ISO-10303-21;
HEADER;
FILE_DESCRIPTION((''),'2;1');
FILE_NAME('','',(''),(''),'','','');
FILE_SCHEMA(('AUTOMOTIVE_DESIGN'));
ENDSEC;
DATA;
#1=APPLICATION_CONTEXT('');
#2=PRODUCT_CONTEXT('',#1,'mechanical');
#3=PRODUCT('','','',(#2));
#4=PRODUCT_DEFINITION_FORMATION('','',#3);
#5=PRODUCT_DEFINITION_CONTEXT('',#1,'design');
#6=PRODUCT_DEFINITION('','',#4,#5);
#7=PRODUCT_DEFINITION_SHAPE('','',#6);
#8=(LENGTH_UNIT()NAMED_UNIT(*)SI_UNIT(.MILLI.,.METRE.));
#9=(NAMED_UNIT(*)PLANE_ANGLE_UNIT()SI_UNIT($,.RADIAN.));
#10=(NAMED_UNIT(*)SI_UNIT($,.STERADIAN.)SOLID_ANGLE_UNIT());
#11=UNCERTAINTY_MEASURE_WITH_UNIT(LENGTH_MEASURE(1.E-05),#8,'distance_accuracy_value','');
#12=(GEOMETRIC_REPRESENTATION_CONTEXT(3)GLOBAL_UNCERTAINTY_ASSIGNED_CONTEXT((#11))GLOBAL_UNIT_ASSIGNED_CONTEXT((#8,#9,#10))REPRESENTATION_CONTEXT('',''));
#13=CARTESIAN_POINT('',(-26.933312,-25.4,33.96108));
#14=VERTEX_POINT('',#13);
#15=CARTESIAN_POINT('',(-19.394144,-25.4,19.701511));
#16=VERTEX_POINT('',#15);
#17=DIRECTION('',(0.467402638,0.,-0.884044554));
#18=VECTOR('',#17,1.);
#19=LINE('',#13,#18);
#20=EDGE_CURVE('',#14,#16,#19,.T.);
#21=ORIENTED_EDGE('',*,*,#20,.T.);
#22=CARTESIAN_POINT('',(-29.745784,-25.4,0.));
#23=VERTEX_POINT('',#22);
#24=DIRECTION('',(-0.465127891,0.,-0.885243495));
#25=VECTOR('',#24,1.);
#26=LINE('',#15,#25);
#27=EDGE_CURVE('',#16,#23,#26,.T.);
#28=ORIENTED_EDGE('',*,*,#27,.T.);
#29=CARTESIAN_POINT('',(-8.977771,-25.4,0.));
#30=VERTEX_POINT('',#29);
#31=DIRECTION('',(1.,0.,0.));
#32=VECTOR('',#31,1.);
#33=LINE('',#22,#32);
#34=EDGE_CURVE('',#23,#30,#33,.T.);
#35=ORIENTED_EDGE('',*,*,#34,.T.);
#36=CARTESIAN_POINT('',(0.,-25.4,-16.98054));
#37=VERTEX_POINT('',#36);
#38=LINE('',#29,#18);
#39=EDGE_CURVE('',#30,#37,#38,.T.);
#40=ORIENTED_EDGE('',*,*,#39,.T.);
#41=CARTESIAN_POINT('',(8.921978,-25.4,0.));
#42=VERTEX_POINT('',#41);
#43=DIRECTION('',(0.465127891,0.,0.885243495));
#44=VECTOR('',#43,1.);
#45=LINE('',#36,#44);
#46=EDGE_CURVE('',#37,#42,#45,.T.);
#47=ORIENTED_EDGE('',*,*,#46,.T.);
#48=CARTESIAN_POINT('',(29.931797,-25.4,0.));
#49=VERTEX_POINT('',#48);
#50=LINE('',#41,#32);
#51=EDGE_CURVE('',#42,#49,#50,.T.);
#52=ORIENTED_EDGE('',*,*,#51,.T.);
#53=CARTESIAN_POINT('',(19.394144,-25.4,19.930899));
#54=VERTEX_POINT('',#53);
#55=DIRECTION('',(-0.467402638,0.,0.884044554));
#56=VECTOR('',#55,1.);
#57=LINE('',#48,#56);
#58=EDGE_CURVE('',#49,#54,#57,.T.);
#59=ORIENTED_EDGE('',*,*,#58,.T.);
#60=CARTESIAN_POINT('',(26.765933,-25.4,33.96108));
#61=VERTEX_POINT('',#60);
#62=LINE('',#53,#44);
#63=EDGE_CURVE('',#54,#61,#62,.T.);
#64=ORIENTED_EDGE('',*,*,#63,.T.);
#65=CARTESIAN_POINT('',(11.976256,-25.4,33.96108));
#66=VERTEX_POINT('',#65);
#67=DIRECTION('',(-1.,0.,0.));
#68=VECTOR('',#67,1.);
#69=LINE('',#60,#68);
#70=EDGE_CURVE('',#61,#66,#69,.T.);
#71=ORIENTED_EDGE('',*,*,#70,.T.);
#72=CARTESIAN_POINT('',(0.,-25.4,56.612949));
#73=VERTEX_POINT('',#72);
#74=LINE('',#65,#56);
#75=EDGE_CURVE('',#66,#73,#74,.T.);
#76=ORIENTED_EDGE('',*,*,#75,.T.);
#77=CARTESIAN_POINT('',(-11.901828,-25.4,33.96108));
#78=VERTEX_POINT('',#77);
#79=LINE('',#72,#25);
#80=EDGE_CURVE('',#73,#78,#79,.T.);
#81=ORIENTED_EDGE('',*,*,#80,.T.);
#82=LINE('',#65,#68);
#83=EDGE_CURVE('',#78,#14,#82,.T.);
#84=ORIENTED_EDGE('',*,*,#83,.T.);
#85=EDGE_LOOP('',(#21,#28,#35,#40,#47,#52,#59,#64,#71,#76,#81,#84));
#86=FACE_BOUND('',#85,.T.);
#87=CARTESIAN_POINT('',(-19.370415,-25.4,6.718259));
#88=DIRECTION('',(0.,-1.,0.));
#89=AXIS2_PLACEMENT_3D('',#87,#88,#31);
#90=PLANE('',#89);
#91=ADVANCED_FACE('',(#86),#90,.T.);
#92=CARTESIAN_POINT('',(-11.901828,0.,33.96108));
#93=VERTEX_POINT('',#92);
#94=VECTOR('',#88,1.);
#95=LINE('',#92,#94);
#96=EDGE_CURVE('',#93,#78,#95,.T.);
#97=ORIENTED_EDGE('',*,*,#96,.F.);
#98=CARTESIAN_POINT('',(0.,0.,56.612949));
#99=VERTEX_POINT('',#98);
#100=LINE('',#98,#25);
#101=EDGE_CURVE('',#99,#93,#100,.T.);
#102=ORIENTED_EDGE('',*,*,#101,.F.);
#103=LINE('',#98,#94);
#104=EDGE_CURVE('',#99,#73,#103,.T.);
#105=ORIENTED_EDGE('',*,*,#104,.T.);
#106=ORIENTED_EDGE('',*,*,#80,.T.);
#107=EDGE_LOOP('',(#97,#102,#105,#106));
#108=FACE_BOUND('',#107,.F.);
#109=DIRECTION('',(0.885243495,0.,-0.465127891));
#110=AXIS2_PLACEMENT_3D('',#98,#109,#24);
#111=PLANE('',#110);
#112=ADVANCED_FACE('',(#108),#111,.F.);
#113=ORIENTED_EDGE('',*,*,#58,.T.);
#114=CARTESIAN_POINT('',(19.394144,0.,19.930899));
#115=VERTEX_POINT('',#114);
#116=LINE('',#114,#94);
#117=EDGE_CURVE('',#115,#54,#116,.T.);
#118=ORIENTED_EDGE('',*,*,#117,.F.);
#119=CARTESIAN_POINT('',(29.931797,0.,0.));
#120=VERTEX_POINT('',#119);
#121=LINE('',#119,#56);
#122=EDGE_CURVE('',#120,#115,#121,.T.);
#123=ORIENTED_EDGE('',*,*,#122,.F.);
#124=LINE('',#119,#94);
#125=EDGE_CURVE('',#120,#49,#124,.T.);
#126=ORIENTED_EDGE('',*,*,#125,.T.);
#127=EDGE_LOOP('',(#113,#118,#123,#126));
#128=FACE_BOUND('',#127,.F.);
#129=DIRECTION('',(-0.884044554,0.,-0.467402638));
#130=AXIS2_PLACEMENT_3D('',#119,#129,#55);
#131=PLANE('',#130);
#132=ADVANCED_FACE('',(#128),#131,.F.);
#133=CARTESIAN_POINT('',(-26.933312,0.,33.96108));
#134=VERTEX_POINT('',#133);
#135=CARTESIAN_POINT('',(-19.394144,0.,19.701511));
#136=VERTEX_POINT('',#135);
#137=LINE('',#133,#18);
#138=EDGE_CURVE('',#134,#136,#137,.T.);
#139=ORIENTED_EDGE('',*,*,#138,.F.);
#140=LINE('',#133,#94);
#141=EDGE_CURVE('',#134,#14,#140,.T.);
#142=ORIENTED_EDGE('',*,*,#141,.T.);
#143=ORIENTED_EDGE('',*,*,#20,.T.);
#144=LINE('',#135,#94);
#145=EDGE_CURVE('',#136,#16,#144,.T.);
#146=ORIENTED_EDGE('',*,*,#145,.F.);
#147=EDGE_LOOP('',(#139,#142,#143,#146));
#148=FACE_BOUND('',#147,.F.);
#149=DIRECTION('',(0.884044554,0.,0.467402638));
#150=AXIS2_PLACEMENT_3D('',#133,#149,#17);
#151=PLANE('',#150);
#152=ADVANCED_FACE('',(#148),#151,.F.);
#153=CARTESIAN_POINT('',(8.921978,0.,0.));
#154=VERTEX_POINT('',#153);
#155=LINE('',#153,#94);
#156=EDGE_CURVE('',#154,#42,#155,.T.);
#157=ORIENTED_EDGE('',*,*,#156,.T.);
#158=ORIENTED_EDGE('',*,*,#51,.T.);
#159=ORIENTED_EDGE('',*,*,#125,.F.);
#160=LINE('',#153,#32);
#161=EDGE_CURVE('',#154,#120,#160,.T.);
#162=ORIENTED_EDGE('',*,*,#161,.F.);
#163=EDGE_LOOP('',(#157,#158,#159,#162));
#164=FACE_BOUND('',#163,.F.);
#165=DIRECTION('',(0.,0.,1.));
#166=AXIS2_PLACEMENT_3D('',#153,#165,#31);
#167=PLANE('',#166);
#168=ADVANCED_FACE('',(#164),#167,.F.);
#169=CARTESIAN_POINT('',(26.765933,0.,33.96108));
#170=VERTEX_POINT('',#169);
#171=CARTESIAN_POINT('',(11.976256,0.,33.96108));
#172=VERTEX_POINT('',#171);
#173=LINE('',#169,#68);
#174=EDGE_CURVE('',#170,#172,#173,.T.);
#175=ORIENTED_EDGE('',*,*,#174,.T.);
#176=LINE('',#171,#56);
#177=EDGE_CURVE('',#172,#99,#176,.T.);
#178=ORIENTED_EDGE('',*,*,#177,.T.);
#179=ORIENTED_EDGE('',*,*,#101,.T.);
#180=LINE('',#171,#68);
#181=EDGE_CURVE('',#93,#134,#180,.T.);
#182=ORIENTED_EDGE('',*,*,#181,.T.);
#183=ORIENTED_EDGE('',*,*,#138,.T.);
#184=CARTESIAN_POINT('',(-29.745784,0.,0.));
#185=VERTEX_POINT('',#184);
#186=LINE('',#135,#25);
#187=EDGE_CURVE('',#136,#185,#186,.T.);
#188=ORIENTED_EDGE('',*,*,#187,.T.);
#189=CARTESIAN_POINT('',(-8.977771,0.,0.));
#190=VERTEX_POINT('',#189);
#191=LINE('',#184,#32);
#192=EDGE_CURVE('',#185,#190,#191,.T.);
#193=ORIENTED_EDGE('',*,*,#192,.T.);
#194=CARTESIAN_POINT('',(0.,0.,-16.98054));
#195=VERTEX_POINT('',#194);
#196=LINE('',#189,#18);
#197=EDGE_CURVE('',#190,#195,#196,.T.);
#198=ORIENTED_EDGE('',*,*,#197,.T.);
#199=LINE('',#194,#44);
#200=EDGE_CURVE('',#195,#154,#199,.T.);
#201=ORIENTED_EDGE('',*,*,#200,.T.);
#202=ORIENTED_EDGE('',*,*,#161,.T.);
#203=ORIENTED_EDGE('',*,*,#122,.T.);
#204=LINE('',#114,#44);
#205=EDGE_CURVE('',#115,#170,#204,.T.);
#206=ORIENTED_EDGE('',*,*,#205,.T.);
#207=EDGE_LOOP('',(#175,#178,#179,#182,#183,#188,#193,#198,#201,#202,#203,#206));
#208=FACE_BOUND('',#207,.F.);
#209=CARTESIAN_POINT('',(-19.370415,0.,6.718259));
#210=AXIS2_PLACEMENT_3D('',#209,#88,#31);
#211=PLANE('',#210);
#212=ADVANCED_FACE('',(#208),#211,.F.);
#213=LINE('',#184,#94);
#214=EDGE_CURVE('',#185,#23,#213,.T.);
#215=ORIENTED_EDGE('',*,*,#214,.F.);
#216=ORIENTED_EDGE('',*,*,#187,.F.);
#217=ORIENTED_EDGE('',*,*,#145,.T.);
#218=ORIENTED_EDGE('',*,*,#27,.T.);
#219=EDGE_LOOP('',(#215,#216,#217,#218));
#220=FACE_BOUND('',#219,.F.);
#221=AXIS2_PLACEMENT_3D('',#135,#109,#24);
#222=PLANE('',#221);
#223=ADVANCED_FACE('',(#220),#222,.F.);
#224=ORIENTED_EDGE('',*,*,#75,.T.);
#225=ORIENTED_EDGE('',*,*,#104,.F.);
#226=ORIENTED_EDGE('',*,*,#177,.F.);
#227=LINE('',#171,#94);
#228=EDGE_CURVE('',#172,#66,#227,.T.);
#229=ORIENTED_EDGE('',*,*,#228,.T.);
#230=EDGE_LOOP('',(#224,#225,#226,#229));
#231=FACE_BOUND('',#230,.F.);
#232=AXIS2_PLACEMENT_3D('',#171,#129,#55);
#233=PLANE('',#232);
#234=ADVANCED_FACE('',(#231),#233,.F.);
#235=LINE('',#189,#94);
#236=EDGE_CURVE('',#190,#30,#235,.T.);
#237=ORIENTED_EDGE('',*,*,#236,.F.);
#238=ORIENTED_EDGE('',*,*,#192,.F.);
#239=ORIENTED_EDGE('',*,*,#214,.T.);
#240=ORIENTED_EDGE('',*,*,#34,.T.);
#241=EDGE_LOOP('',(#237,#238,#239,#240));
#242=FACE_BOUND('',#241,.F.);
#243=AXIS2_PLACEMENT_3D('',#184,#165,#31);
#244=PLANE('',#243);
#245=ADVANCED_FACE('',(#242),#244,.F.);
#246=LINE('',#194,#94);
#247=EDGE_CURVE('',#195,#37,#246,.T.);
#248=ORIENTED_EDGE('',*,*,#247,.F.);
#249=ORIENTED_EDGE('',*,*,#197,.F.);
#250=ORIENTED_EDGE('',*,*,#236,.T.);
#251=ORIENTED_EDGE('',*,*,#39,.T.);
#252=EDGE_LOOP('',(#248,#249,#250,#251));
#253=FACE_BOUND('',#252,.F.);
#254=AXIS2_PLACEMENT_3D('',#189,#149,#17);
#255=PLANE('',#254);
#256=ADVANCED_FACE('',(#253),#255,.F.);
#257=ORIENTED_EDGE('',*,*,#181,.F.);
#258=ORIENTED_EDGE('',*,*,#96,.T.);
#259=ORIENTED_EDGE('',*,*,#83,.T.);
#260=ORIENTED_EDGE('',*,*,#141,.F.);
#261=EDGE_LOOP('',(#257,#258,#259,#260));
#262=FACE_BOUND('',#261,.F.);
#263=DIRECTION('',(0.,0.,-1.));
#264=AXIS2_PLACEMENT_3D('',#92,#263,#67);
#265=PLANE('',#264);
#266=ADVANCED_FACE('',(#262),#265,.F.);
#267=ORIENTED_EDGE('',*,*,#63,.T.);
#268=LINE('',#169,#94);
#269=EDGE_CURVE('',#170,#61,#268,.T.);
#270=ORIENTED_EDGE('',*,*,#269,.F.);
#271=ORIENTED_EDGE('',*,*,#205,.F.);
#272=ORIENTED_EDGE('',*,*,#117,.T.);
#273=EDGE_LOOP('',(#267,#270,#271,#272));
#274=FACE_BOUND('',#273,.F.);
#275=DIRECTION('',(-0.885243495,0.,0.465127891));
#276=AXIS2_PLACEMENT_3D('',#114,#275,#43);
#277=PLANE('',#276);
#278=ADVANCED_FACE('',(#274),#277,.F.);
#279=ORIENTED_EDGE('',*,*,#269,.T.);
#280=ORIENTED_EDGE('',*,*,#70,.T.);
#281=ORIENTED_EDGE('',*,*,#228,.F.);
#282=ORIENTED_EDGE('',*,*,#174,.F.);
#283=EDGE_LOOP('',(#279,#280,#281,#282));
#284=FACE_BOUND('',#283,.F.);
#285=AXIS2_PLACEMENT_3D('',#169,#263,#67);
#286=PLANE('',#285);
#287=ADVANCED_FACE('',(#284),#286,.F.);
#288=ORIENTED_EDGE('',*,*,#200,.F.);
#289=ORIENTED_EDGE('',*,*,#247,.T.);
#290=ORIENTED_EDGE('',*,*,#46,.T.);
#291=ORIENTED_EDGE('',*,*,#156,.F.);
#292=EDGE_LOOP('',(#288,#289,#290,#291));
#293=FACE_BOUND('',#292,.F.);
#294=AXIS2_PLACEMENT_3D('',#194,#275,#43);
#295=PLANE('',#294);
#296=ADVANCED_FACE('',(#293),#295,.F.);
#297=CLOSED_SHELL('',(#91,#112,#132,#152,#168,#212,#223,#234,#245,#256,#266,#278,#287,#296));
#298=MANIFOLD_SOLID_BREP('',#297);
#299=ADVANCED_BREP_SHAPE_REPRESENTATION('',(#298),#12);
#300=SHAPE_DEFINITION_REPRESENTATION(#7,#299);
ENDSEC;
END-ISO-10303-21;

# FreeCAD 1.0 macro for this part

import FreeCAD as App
import Part
import Sketcher
from FreeCAD import Vector
Q = App.Units.Quantity

doc = App.newDocument("Part")
body = doc.addObject("PartDesign::Body", "Body")

# Sketch on XZ plane
sketch1 = body.newObject("Sketcher::SketchObject", "Sketch")
sketch1.AttachmentSupport = (doc.getObject("XZ_Plane"), [""])
sketch1.MapMode = "FlatFace"
sketch1.addGeometry(Part.LineSegment(Vector(-19.394144, 19.701511, 0), Vector(-29.745784, 0, 0)), False)
sketch1.addGeometry(Part.LineSegment(Vector(-29.745784, 0, 0), Vector(-8.977771, 0, 0)), False)
sketch1.addGeometry(Part.LineSegment(Vector(-8.977771, 0, 0), Vector(0, -16.98054, 0)), False)
sketch1.addGeometry(Part.LineSegment(Vector(0, -16.98054, 0), Vector(8.921978, 0, 0)), False)
sketch1.addGeometry(Part.LineSegment(Vector(8.921978, 0, 0), Vector(29.931797, 0, 0)), False)
sketch1.addGeometry(Part.LineSegment(Vector(29.931797, 0, 0), Vector(19.394144, 19.930899, 0)), False)
sketch1.addGeometry(Part.LineSegment(Vector(19.394144, 19.930899, 0), Vector(26.765933, 33.96108, 0)), False)
sketch1.addGeometry(Part.LineSegment(Vector(26.765933, 33.96108, 0), Vector(11.976256, 33.96108, 0)), False)
sketch1.addGeometry(Part.LineSegment(Vector(11.976256, 33.96108, 0), Vector(0, 56.612949, 0)), False)
sketch1.addGeometry(Part.LineSegment(Vector(0, 56.612949, 0), Vector(-11.901828, 33.96108, 0)), False)
sketch1.addGeometry(Part.LineSegment(Vector(-11.901828, 33.96108, 0), Vector(-26.933312, 33.96108, 0)), False)
sketch1.addGeometry(Part.LineSegment(Vector(-26.933312, 33.96108, 0), Vector(-19.394144, 19.701511, 0)), False)
sketch1.addConstraint(Sketcher.Constraint("Coincident", 0, 2, 1, 1))
sketch1.addConstraint(Sketcher.Constraint("Coincident", 1, 2, 2, 1))
sketch1.addConstraint(Sketcher.Constraint("Coincident", 2, 2, 3, 1))
sketch1.addConstraint(Sketcher.Constraint("Coincident", 3, 2, 4, 1))
sketch1.addConstraint(Sketcher.Constraint("Coincident", 4, 2, 5, 1))
sketch1.addConstraint(Sketcher.Constraint("Coincident", 5, 2, 6, 1))
sketch1.addConstraint(Sketcher.Constraint("Coincident", 6, 2, 7, 1))
sketch1.addConstraint(Sketcher.Constraint("Coincident", 7, 2, 8, 1))
sketch1.addConstraint(Sketcher.Constraint("Coincident", 8, 2, 9, 1))
sketch1.addConstraint(Sketcher.Constraint("Coincident", 9, 2, 10, 1))
sketch1.addConstraint(Sketcher.Constraint("Coincident", 10, 2, 11, 1))
sketch1.addConstraint(Sketcher.Constraint("Coincident", 11, 2, 0, 1))
sketch1.addConstraint(Sketcher.Constraint("Horizontal", 1))
sketch1.addConstraint(Sketcher.Constraint("Horizontal", 4))
sketch1.addConstraint(Sketcher.Constraint("Horizontal", 7))
sketch1.addConstraint(Sketcher.Constraint("Horizontal", 10))
sketch1.addConstraint(Sketcher.Constraint("PointOnObject", 0, 2, -1))
sketch1.addConstraint(Sketcher.Constraint("PointOnObject", 2, 2, -2))
sketch1.addConstraint(Sketcher.Constraint("PointOnObject", 3, 2, -1))
sketch1.addConstraint(Sketcher.Constraint("PointOnObject", 8, 2, -2))
sketch1.addConstraint(Sketcher.Constraint("Parallel", 0, 3))
sketch1.addConstraint(Sketcher.Constraint("Parallel", 2, 5))
sketch1.addConstraint(Sketcher.Constraint("Parallel", 3, 6))
sketch1.addConstraint(Sketcher.Constraint("Parallel", 5, 8))
sketch1.addConstraint(Sketcher.Constraint("Parallel", 6, 9))
sketch1.addConstraint(Sketcher.Constraint("Parallel", 8, 11))
sketch1.addConstraint(Sketcher.Constraint("Horizontal", 7, 2, 9, 2))
sketch1.addConstraint(Sketcher.Constraint("DistanceX", 4, 1, 4, 2, 21.009819))
sketch1.addConstraint(Sketcher.Constraint("DistanceY", -1, 1, 5, 2, 19.930899))
sketch1.addConstraint(Sketcher.Constraint("DistanceX", 11, 2, 7, 2, 31.370399))
sketch1.addConstraint(Sketcher.Constraint("Distance", 0, 22.255471))
sketch1.addConstraint(Sketcher.Constraint("Distance", 5, 22.545129))
sketch1.addConstraint(Sketcher.Constraint("Distance", 6, 15.848952))
sketch1.addConstraint(Sketcher.Constraint("Distance", 11, 16.129922))
sketch1.addConstraint(Sketcher.Constraint("DistanceX", 1, 1, 1, 2, 20.768013))
sketch1.addConstraint(Sketcher.Constraint("DistanceX", 7, 2, 7, 1, 14.789678))
pad1 = body.newObject("PartDesign::Pad", "Pad")
pad1.Profile = sketch1
pad1.Length = Q("1 in")

doc.recompute()
